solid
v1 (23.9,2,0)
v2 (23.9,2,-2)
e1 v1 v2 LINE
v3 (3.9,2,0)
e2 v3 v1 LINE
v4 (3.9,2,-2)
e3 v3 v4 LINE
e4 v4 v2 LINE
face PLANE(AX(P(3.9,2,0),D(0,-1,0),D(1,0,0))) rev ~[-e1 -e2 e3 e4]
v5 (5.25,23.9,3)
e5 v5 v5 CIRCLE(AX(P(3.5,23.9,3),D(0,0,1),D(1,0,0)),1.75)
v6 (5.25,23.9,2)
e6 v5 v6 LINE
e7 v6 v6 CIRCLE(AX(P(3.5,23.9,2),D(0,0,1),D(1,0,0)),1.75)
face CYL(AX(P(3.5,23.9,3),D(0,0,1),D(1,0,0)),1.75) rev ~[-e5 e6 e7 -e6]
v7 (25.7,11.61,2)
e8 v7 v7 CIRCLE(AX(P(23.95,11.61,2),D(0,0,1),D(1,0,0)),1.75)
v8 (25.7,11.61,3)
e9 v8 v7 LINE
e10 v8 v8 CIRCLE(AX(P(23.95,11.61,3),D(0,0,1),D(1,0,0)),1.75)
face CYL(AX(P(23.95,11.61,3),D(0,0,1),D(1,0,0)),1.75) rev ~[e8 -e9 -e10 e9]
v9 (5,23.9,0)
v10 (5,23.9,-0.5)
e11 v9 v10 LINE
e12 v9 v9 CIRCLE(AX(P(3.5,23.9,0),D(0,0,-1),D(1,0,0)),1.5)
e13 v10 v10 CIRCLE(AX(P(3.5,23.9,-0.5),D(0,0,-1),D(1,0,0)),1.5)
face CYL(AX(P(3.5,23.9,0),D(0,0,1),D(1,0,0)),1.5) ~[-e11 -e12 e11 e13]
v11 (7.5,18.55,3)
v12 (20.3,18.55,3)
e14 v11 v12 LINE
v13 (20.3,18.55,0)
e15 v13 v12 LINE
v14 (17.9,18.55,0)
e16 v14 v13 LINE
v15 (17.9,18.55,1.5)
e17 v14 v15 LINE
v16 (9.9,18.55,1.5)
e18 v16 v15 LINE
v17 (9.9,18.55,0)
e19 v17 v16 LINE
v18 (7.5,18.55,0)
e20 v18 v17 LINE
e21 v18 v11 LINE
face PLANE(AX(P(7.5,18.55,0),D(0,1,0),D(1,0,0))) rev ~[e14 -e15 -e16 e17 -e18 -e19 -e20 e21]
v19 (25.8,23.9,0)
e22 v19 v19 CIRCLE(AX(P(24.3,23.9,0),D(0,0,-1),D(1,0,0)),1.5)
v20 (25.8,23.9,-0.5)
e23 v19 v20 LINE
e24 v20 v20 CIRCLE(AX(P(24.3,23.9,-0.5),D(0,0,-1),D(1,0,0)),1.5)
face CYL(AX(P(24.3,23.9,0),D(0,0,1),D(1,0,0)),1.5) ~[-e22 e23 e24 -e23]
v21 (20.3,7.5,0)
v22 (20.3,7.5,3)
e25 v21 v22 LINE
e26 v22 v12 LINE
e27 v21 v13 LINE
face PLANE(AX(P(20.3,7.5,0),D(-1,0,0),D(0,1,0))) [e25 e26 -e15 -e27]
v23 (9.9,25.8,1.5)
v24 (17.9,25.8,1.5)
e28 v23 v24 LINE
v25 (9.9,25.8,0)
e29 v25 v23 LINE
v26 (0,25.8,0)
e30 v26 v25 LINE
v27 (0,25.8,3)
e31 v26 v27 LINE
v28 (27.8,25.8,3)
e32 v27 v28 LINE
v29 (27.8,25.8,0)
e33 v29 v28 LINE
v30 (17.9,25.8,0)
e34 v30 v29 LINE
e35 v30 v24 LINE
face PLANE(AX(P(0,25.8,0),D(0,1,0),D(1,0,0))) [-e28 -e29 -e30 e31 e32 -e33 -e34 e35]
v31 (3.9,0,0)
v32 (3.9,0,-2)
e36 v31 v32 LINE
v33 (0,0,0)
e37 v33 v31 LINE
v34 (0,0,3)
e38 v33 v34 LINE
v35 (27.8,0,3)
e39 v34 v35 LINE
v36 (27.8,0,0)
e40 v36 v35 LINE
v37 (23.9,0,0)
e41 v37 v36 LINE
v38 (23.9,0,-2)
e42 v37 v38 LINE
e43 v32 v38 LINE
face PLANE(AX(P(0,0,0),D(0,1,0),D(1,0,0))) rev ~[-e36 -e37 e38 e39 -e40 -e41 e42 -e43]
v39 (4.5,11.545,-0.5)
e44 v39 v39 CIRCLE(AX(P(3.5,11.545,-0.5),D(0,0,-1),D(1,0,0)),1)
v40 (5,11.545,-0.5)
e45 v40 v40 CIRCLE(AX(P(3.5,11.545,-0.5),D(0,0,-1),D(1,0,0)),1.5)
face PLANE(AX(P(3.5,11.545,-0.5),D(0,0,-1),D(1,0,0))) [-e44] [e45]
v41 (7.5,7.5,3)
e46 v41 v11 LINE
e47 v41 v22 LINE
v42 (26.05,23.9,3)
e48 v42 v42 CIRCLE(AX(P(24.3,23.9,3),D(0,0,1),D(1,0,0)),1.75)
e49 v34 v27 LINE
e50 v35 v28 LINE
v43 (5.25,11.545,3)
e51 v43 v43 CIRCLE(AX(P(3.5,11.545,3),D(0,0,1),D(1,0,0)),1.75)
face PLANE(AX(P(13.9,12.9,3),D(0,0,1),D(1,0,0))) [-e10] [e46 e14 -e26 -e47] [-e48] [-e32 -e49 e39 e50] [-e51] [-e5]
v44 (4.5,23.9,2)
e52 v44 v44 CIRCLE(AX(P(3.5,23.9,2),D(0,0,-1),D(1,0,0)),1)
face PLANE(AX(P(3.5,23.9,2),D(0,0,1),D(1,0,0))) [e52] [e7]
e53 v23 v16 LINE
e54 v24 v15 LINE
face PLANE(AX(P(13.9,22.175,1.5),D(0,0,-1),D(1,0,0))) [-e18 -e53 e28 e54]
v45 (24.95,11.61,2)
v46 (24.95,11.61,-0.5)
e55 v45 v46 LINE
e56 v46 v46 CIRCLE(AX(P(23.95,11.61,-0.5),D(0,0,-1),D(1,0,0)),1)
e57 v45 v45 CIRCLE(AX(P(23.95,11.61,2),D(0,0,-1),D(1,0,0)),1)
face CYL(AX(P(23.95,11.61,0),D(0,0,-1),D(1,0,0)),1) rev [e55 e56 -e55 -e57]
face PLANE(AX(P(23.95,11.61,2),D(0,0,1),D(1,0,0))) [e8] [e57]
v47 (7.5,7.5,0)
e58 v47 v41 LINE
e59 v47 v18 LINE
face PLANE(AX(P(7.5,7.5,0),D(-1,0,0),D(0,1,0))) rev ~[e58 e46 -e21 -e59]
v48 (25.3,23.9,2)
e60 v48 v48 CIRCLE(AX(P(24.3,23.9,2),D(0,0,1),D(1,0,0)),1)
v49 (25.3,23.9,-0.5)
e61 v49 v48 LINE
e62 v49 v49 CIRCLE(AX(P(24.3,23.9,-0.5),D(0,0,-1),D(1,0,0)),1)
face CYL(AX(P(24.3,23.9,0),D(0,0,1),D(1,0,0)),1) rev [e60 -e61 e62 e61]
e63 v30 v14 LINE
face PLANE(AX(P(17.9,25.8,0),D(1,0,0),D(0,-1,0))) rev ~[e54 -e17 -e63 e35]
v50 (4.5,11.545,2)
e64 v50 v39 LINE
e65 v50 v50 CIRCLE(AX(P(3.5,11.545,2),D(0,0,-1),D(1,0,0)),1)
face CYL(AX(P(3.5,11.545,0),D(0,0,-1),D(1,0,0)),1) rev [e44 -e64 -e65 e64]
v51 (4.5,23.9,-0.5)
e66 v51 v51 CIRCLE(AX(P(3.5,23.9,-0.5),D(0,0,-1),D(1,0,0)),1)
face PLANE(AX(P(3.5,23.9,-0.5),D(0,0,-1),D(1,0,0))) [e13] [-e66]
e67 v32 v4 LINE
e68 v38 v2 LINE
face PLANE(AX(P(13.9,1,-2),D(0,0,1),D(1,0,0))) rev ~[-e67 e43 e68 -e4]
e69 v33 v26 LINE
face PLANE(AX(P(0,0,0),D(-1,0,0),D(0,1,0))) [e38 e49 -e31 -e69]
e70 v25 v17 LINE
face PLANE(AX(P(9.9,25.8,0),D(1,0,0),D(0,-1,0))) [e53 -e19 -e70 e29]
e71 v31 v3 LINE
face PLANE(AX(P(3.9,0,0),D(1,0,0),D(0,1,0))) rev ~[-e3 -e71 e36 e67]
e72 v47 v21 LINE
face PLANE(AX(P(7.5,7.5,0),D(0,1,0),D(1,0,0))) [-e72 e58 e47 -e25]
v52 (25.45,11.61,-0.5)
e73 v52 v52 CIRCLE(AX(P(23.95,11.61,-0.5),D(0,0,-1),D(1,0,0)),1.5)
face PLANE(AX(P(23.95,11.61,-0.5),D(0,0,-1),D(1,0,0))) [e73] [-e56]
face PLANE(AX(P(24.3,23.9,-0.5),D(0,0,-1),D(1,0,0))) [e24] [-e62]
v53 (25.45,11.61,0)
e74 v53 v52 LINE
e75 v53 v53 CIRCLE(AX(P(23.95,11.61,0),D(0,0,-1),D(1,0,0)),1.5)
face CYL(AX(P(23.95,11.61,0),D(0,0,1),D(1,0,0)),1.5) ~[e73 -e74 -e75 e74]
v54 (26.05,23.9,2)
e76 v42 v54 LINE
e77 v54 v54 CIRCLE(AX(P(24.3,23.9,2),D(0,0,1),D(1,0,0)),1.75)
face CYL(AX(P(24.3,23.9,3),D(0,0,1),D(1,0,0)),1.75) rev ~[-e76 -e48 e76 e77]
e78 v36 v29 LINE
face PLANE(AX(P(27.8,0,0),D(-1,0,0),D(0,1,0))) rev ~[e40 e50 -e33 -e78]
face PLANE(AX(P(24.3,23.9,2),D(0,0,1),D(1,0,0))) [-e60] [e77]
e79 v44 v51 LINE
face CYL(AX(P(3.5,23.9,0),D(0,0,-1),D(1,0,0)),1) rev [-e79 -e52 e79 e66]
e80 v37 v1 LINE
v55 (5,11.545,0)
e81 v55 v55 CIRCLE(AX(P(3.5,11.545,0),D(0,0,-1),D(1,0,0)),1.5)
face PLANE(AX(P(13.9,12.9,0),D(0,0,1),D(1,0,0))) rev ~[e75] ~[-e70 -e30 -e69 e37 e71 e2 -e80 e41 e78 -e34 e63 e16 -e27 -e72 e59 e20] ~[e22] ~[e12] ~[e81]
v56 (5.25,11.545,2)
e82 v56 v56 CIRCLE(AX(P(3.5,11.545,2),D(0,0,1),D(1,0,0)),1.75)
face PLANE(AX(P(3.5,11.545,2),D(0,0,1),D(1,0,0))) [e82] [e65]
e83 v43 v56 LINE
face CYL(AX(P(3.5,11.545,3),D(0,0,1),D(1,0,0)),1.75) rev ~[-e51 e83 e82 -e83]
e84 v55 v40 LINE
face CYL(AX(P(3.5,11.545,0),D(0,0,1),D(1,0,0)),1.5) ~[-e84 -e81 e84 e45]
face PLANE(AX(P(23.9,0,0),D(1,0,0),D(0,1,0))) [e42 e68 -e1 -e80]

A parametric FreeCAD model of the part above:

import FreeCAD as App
import Part
import Sketcher
Q = App.Units.Quantity

doc = App.newDocument("Part")
params = doc.addObject("Spreadsheet::Sheet", "Params")
for row, (alias, value) in enumerate([
    ("sketch1_diameter", "2 mm"),
    ("sketch1_width", "27.8 mm"),
    ("sketch1_width2", "12.8 mm"),
    ("sketch1_height", "25.8 mm"),
    ("sketch1_height2", "11.05 mm"),
    ("pad1_length", "3 mm"),
    ("sketch2_width", "20 mm"),
    ("sketch2_height", "2 mm"),
    ("pad2_length", "2 mm"),
    ("sketch3_diameter", "3 mm"),
    ("sketch3_diameter2", "2 mm"),
    ("pad3_length", "0.5 mm"),
    ("sketch4_diameter", "3.5 mm"),
    ("pocket1_length", "1 mm"),
    ("sketch5_width", "8 mm"),
    ("sketch5_height", "7.25 mm"),
    ("pocket2_length", "1.5 mm"),
], start=1):
    params.set(f"A{row}", alias)
    params.set(f"B{row}", "=" + value)
    params.setAlias(f"B{row}", alias)

body = doc.addObject("PartDesign::Body", "Body")

sketch1 = body.newObject("Sketcher::SketchObject", "Sketch")
sketch1.AttachmentSupport = (doc.getObject("XY_Plane"), [""])
sketch1.MapMode = "FlatFace"
sketch1.addGeometry([
    Part.LineSegment(App.Vector(0, 25.8, 0), App.Vector(0, 0, 0)),
    Part.LineSegment(App.Vector(0, 0, 0), App.Vector(27.8, 0, 0)),
    Part.LineSegment(App.Vector(27.8, 0, 0), App.Vector(27.8, 25.8, 0)),
    Part.LineSegment(App.Vector(27.8, 25.8, 0), App.Vector(0, 25.8, 0)),
    Part.Circle(App.Vector(3.5, 11.5, 0), App.Vector(0, 0, 1), 1),
    Part.Circle(App.Vector(23.9, 11.6, 0), App.Vector(0, 0, 1), 1),
    Part.LineSegment(App.Vector(20.3, 7.5, 0), App.Vector(7.5, 7.5, 0)),
    Part.LineSegment(App.Vector(7.5, 7.5, 0), App.Vector(7.5, 18.6, 0)),
    Part.LineSegment(App.Vector(7.5, 18.6, 0), App.Vector(20.3, 18.6, 0)),
    Part.LineSegment(App.Vector(20.3, 18.6, 0), App.Vector(20.3, 7.5, 0)),
    Part.Circle(App.Vector(3.5, 23.9, 0), App.Vector(0, 0, 1), 1),
    Part.Circle(App.Vector(24.3, 23.9, 0), App.Vector(0, 0, 1), 1),
], False)
sketch1.addConstraint([
    Sketcher.Constraint("Coincident", 0, 2, 1, 1),
    Sketcher.Constraint("Coincident", 1, 2, 2, 1),
    Sketcher.Constraint("Coincident", 2, 2, 3, 1),
    Sketcher.Constraint("Coincident", 3, 2, 0, 1),
    Sketcher.Constraint("Coincident", 6, 2, 7, 1),
    Sketcher.Constraint("Coincident", 7, 2, 8, 1),
    Sketcher.Constraint("Coincident", 8, 2, 9, 1),
    Sketcher.Constraint("Coincident", 9, 2, 6, 1),
    Sketcher.Constraint("Vertical", 0),
    Sketcher.Constraint("Horizontal", 1),
    Sketcher.Constraint("Vertical", 2),
    Sketcher.Constraint("Horizontal", 3),
    Sketcher.Constraint("Horizontal", 6),
    Sketcher.Constraint("Vertical", 7),
    Sketcher.Constraint("Horizontal", 8),
    Sketcher.Constraint("Vertical", 9),
    Sketcher.Constraint("Coincident", 0, 2, -1, 1),
    Sketcher.Constraint("Equal", 4, 5),
    Sketcher.Constraint("Equal", 5, 10),
    Sketcher.Constraint("Equal", 10, 11),
    Sketcher.Constraint("Horizontal", 10, 3, 11, 3),
    Sketcher.Constraint("Vertical", 4, 3, 10, 3),
    Sketcher.Constraint("Diameter", 4, Q("2 mm")),
    Sketcher.Constraint("DistanceX", 1, 1, 1, 2, Q("27.8 mm")),
    Sketcher.Constraint("DistanceX", 6, 2, 6, 1, Q("12.8 mm")),
    Sketcher.Constraint("DistanceY", 0, 2, 0, 1, Q("25.8 mm")),
    Sketcher.Constraint("DistanceX", 4, 3, 6, 2, Q("4 mm")),
    Sketcher.Constraint("DistanceX", 8, 2, 11, 3, Q("4 mm")),
    Sketcher.Constraint("DistanceY", 7, 1, 7, 2, Q("11.05 mm")),
    Sketcher.Constraint("DistanceX", -1, 1, 4, 3, Q("3.5 mm")),
    Sketcher.Constraint("DistanceY", -1, 1, 10, 3, Q("23.9 mm")),
    Sketcher.Constraint("DistanceY", -1, 1, 6, 2, Q("7.5 mm")),
    Sketcher.Constraint("DistanceX", -1, 1, 5, 3, Q("23.95 mm")),
    Sketcher.Constraint("DistanceY", -1, 1, 5, 3, Q("11.61 mm")),
    Sketcher.Constraint("DistanceY", -1, 1, 4, 3, Q("11.545 mm")),
])
sketch1.setExpression("Constraints[22]", "Params.sketch1_diameter")
sketch1.setExpression("Constraints[23]", "Params.sketch1_width")
sketch1.setExpression("Constraints[24]", "Params.sketch1_width2")
sketch1.setExpression("Constraints[25]", "Params.sketch1_height")
sketch1.setExpression("Constraints[28]", "Params.sketch1_height2")
pad1 = body.newObject("PartDesign::Pad", "Pad")
pad1.Profile = sketch1
pad1.setExpression("Length", "Params.pad1_length")

sketch2 = body.newObject("Sketcher::SketchObject", "Sketch001")
sketch2.AttachmentSupport = (doc.getObject("XY_Plane"), [""])
sketch2.MapMode = "FlatFace"
sketch2.addGeometry([
    Part.LineSegment(App.Vector(3.9, 2, 0), App.Vector(3.9, 0, 0)),
    Part.LineSegment(App.Vector(3.9, 0, 0), App.Vector(23.9, 0, 0)),
    Part.LineSegment(App.Vector(23.9, 0, 0), App.Vector(23.9, 2, 0)),
    Part.LineSegment(App.Vector(23.9, 2, 0), App.Vector(3.9, 2, 0)),
], False)
sketch2.addConstraint([
    Sketcher.Constraint("Coincident", 0, 2, 1, 1),
    Sketcher.Constraint("Coincident", 1, 2, 2, 1),
    Sketcher.Constraint("Coincident", 2, 2, 3, 1),
    Sketcher.Constraint("Coincident", 3, 2, 0, 1),
    Sketcher.Constraint("Vertical", 0),
    Sketcher.Constraint("Horizontal", 1),
    Sketcher.Constraint("Vertical", 2),
    Sketcher.Constraint("Horizontal", 3),
    Sketcher.Constraint("PointOnObject", 0, 2, -1),
    Sketcher.Constraint("DistanceX", 1, 1, 1, 2, Q("20 mm")),
    Sketcher.Constraint("DistanceY", 0, 2, 0, 1, Q("2 mm")),
    Sketcher.Constraint("DistanceX", -1, 1, 0, 2, Q("3.9 mm")),
])
sketch2.setExpression("Constraints[9]", "Params.sketch2_width")
sketch2.setExpression("Constraints[10]", "Params.sketch2_height")
pad2 = body.newObject("PartDesign::Pad", "Pad001")
pad2.Profile = sketch2
pad2.setExpression("Length", "Params.pad2_length")
pad2.Reversed = True

sketch3 = body.newObject("Sketcher::SketchObject", "Sketch002")
sketch3.AttachmentSupport = (doc.getObject("XY_Plane"), [""])
sketch3.MapMode = "FlatFace"
sketch3.addGeometry([
    Part.Circle(App.Vector(24.3, 23.9, 0), App.Vector(0, 0, 1), 1.5),
    Part.Circle(App.Vector(24.3, 23.9, 0), App.Vector(0, 0, 1), 1),
    Part.Circle(App.Vector(3.5, 23.9, 0), App.Vector(0, 0, 1), 1.5),
    Part.Circle(App.Vector(3.5, 23.9, 0), App.Vector(0, 0, 1), 1),
    Part.Circle(App.Vector(23.9, 11.6, 0), App.Vector(0, 0, 1), 1.5),
    Part.Circle(App.Vector(23.9, 11.6, 0), App.Vector(0, 0, 1), 1),
    Part.Circle(App.Vector(3.5, 11.5, 0), App.Vector(0, 0, 1), 1.5),
    Part.Circle(App.Vector(3.5, 11.5, 0), App.Vector(0, 0, 1), 1),
], False)
sketch3.addConstraint([
    Sketcher.Constraint("Coincident", 1, 3, 0, 3),
    Sketcher.Constraint("Coincident", 3, 3, 2, 3),
    Sketcher.Constraint("Coincident", 5, 3, 4, 3),
    Sketcher.Constraint("Coincident", 7, 3, 6, 3),
    Sketcher.Constraint("Equal", 0, 2),
    Sketcher.Constraint("Equal", 1, 3),
    Sketcher.Constraint("Equal", 2, 4),
    Sketcher.Constraint("Equal", 3, 5),
    Sketcher.Constraint("Equal", 4, 6),
    Sketcher.Constraint("Equal", 5, 7),
    Sketcher.Constraint("Horizontal", 1, 3, 2, 3),
    Sketcher.Constraint("Vertical", 3, 3, 6, 3),
    Sketcher.Constraint("Diameter", 0, Q("3 mm")),
    Sketcher.Constraint("Diameter", 1, Q("2 mm")),
    Sketcher.Constraint("DistanceX", -1, 1, 0, 3, Q("24.3 mm")),
    Sketcher.Constraint("DistanceY", -1, 1, 0, 3, Q("23.9 mm")),
    Sketcher.Constraint("DistanceX", -1, 1, 2, 3, Q("3.5 mm")),
    Sketcher.Constraint("DistanceX", -1, 1, 4, 3, Q("23.95 mm")),
    Sketcher.Constraint("DistanceY", -1, 1, 4, 3, Q("11.61 mm")),
    Sketcher.Constraint("DistanceY", -1, 1, 6, 3, Q("11.545 mm")),
])
sketch3.setExpression("Constraints[12]", "Params.sketch3_diameter")
sketch3.setExpression("Constraints[13]", "Params.sketch3_diameter2")
pad3 = body.newObject("PartDesign::Pad", "Pad002")
pad3.Profile = sketch3
pad3.setExpression("Length", "Params.pad3_length")
pad3.Reversed = True

sketch4 = body.newObject("Sketcher::SketchObject", "Sketch003")
sketch4.AttachmentSupport = (doc.getObject("XY_Plane"), [""])
sketch4.MapMode = "FlatFace"
sketch4.AttachmentOffset = App.Placement(App.Vector(0, 0, 3), App.Rotation())
sketch4.addGeometry([
    Part.Circle(App.Vector(23.9, 11.6, 0), App.Vector(0, 0, 1), 1.8),
    Part.Circle(App.Vector(3.5, 11.5, 0), App.Vector(0, 0, 1), 1.8),
    Part.Circle(App.Vector(3.5, 23.9, 0), App.Vector(0, 0, 1), 1.8),
    Part.Circle(App.Vector(24.3, 23.9, 0), App.Vector(0, 0, 1), 1.8),
], False)
sketch4.addConstraint([
    Sketcher.Constraint("Equal", 0, 1),
    Sketcher.Constraint("Equal", 1, 2),
    Sketcher.Constraint("Equal", 2, 3),
    Sketcher.Constraint("Horizontal", 2, 3, 3, 3),
    Sketcher.Constraint("Vertical", 1, 3, 2, 3),
    Sketcher.Constraint("Diameter", 0, Q("3.5 mm")),
    Sketcher.Constraint("DistanceX", -1, 1, 1, 3, Q("3.5 mm")),
    Sketcher.Constraint("DistanceY", -1, 1, 2, 3, Q("23.9 mm")),
    Sketcher.Constraint("DistanceX", -1, 1, 3, 3, Q("24.3 mm")),
    Sketcher.Constraint("DistanceX", -1, 1, 0, 3, Q("23.95 mm")),
    Sketcher.Constraint("DistanceY", -1, 1, 0, 3, Q("11.61 mm")),
    Sketcher.Constraint("DistanceY", -1, 1, 1, 3, Q("11.545 mm")),
])
sketch4.setExpression("Constraints[5]", "Params.sketch4_diameter")
pocket1 = body.newObject("PartDesign::Pocket", "Pocket")
pocket1.Profile = sketch4
pocket1.setExpression("Length", "Params.pocket1_length")

sketch5 = body.newObject("Sketcher::SketchObject", "Sketch004")
sketch5.AttachmentSupport = (doc.getObject("XY_Plane"), [""])
sketch5.MapMode = "FlatFace"
sketch5.addGeometry([
    Part.LineSegment(App.Vector(10, 19, 0), App.Vector(10, 26, 0)),
    Part.LineSegment(App.Vector(10, 26, 0), App.Vector(18, 26, 0)),
    Part.LineSegment(App.Vector(18, 26, 0), App.Vector(18, 19, 0)),
    Part.LineSegment(App.Vector(18, 19, 0), App.Vector(10, 19, 0)),
], False)
sketch5.addConstraint([
    Sketcher.Constraint("Coincident", 0, 2, 1, 1),
    Sketcher.Constraint("Coincident", 1, 2, 2, 1),
    Sketcher.Constraint("Coincident", 2, 2, 3, 1),
    Sketcher.Constraint("Coincident", 3, 2, 0, 1),
    Sketcher.Constraint("Vertical", 0),
    Sketcher.Constraint("Horizontal", 1),
    Sketcher.Constraint("Vertical", 2),
    Sketcher.Constraint("Horizontal", 3),
    Sketcher.Constraint("DistanceX", 1, 1, 1, 2, Q("8 mm")),
    Sketcher.Constraint("DistanceY", 0, 1, 0, 2, Q("7.25 mm")),
    Sketcher.Constraint("DistanceX", -1, 1, 0, 2, Q("9.9 mm")),
    Sketcher.Constraint("DistanceY", -1, 1, 0, 2, Q("25.8 mm")),
])
sketch5.setExpression("Constraints[8]", "Params.sketch5_width")
sketch5.setExpression("Constraints[9]", "Params.sketch5_height")
pocket2 = body.newObject("PartDesign::Pocket", "Pocket001")
pocket2.Profile = sketch5
pocket2.setExpression("Length", "Params.pocket2_length")
pocket2.Reversed = True

doc.recompute()
